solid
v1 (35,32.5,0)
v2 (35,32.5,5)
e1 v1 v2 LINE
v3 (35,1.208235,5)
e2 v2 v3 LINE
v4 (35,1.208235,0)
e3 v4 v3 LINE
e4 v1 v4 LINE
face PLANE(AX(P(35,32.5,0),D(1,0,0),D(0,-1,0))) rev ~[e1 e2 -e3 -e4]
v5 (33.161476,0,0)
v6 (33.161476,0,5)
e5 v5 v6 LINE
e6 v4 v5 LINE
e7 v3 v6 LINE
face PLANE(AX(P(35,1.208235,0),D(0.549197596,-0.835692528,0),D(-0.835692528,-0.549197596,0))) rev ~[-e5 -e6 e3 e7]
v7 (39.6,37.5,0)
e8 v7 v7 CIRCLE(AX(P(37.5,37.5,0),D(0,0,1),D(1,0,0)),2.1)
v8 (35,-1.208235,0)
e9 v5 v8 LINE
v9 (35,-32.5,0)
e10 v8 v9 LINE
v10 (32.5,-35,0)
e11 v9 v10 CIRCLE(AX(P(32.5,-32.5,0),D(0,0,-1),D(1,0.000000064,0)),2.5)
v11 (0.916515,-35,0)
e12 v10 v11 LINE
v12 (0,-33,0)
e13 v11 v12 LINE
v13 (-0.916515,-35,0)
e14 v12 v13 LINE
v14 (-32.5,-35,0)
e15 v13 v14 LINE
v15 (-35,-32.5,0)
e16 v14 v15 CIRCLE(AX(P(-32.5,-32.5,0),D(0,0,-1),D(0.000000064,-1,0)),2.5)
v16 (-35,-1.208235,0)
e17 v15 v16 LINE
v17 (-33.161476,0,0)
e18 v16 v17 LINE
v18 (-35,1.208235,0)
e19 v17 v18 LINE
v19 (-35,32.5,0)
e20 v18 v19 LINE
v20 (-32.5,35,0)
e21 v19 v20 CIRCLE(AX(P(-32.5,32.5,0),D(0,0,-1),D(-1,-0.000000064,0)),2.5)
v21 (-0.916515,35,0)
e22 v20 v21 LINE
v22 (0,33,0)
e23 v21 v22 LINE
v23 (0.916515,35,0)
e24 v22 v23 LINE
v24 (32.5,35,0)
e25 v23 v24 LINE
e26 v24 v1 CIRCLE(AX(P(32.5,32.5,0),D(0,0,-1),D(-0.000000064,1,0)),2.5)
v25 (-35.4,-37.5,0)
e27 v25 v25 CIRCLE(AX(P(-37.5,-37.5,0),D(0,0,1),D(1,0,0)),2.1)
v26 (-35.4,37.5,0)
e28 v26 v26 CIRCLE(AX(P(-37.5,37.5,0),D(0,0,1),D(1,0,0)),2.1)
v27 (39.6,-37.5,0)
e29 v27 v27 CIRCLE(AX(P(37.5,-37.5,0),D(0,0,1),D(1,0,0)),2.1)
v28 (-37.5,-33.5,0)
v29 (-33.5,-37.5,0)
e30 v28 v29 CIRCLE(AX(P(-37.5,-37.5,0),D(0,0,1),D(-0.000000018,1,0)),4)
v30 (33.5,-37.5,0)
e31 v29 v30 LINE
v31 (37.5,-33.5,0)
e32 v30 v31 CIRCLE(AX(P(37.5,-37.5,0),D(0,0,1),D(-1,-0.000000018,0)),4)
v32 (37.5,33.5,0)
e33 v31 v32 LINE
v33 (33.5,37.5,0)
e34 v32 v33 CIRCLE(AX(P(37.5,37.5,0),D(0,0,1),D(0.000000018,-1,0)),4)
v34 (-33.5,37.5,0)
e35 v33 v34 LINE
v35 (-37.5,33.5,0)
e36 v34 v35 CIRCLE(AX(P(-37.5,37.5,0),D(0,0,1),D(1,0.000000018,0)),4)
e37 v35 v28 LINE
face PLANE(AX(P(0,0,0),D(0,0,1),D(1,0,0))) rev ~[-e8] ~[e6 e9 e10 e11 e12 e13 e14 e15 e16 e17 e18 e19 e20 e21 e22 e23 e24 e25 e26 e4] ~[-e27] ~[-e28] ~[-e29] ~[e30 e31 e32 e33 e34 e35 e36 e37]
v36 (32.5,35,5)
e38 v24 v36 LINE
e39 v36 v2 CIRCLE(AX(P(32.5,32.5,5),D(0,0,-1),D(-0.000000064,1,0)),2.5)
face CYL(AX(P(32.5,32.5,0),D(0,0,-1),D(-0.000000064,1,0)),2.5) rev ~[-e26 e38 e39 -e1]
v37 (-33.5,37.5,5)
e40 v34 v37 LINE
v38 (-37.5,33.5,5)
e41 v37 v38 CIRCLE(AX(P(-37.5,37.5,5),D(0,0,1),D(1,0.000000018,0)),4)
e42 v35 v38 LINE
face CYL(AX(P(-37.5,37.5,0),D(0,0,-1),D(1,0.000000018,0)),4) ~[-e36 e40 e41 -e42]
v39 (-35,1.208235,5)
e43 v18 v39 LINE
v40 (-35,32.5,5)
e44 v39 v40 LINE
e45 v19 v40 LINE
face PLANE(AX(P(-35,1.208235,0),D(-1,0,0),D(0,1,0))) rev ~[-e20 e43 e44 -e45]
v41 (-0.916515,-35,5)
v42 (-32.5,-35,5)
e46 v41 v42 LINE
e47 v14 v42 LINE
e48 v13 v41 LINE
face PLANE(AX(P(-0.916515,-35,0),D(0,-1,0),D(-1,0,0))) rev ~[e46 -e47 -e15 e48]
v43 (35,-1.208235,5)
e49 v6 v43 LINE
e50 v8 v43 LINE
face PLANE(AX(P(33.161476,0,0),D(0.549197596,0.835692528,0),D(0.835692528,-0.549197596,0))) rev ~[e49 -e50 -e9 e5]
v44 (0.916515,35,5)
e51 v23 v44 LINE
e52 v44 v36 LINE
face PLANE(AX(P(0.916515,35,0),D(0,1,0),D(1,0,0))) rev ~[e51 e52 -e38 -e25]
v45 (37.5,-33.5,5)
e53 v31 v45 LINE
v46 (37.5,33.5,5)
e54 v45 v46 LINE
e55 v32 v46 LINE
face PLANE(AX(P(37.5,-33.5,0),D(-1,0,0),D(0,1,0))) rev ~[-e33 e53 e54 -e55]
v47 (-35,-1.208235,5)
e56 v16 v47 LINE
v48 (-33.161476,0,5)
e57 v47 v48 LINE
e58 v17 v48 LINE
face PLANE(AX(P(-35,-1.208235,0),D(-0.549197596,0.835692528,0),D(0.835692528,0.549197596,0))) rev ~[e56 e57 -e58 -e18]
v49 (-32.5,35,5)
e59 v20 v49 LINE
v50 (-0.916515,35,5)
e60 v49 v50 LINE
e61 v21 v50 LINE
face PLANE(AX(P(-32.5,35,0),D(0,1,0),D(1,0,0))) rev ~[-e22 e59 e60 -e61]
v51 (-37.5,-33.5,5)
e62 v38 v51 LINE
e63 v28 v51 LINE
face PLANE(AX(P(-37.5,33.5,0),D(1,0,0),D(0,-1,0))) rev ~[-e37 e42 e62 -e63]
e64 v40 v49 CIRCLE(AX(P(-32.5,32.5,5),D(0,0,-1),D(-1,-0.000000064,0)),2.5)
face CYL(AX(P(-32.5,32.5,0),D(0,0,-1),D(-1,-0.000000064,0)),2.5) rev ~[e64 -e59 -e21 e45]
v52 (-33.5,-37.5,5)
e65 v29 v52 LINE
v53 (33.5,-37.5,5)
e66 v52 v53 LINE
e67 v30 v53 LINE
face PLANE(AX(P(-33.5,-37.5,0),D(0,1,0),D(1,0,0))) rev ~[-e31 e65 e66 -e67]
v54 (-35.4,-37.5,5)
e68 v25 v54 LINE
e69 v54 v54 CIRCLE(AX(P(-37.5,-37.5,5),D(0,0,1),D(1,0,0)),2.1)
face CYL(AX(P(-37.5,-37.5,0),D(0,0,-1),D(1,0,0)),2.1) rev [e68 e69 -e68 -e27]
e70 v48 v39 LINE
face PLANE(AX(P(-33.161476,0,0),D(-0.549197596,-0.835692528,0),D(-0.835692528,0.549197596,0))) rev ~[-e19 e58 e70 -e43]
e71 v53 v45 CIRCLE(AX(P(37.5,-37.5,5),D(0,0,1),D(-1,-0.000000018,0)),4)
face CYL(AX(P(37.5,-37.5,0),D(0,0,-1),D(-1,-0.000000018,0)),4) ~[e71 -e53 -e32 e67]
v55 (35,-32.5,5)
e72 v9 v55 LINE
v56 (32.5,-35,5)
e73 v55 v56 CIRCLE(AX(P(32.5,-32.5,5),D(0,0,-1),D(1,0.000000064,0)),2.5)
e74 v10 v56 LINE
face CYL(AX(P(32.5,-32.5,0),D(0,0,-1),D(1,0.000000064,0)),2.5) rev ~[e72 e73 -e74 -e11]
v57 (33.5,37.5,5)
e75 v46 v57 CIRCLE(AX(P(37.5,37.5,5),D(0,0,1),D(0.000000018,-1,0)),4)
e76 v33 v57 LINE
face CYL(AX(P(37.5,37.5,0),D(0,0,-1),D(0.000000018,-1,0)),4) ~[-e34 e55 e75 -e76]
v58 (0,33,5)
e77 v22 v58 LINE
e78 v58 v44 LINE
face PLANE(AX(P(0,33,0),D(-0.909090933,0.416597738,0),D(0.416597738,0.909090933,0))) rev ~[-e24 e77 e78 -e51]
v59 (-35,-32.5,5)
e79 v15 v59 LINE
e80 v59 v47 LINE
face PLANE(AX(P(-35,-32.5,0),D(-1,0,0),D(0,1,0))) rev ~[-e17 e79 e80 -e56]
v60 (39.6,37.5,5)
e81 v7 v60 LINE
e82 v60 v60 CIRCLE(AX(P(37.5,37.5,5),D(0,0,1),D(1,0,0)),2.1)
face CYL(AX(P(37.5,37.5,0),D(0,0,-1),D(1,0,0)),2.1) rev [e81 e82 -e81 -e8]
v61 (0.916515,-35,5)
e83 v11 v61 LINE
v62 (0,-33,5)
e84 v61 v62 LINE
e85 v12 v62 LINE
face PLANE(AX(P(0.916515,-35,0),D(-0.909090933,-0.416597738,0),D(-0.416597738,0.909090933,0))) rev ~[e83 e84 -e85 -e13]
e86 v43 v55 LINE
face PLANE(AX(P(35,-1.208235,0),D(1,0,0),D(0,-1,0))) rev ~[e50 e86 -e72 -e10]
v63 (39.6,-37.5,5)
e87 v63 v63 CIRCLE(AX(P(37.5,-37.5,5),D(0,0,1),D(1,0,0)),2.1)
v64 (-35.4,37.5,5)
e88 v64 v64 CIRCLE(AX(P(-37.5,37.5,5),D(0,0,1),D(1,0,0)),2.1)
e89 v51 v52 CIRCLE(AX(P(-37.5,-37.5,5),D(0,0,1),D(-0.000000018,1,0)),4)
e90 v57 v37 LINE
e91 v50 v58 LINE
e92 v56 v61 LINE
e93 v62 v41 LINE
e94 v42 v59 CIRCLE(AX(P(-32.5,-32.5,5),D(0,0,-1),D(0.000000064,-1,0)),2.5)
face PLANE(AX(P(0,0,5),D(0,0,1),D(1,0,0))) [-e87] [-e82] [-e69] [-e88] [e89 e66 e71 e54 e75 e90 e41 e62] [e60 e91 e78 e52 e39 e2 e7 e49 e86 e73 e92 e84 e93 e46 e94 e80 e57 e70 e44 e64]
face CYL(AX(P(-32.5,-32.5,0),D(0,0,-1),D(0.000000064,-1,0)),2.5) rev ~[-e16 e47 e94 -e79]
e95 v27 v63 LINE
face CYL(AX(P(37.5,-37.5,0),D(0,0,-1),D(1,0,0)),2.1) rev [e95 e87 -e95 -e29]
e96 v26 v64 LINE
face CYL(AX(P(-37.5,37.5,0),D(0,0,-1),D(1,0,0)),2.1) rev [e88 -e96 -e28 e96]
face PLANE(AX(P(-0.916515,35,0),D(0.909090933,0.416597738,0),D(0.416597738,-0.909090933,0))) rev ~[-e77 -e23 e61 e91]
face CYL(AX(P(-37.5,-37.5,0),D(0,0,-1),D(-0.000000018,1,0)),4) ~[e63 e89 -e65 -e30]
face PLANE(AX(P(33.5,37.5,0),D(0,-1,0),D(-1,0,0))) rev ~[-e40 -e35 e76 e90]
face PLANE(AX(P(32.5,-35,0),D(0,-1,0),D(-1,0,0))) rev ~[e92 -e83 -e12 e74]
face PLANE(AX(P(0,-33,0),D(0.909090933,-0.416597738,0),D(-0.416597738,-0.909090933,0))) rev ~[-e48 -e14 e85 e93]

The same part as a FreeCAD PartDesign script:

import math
import FreeCAD as App
import Part
import Sketcher

V = App.Vector
Q = App.Units.Quantity

doc = App.newDocument("Part")
body = doc.addObject("PartDesign::Body", "Body")

sketch1 = body.newObject("Sketcher::SketchObject", "Sketch")
sketch1.AttachmentSupport = (doc.getObject("XY_Plane"), [""])
sketch1.MapMode = "FlatFace"
sketch1.addGeometry(Part.ArcOfCircle(Part.Circle(V(37.5, 37.5, 0), V(0, 0, 1), 4), math.radians(-90), math.radians(180)), False)
sketch1.addGeometry(Part.LineSegment(V(33.5, 37.5, 0), V(-33.5, 37.5, 0)), False)
sketch1.addGeometry(Part.ArcOfCircle(Part.Circle(V(-37.5, 37.5, 0), V(0, 0, 1), 4), math.radians(0), math.radians(270)), False)
sketch1.addGeometry(Part.LineSegment(V(-37.5, 33.5, 0), V(-37.5, -33.5, 0)), False)
sketch1.addGeometry(Part.ArcOfCircle(Part.Circle(V(-37.5, -37.5, 0), V(0, 0, 1), 4), math.radians(90), math.radians(360)), False)
sketch1.addGeometry(Part.LineSegment(V(-33.5, -37.5, 0), V(33.5, -37.5, 0)), False)
sketch1.addGeometry(Part.ArcOfCircle(Part.Circle(V(37.5, -37.5, 0), V(0, 0, 1), 4), math.radians(-180), math.radians(90)), False)
sketch1.addGeometry(Part.LineSegment(V(37.5, -33.5, 0), V(37.5, 33.5, 0)), False)
sketch1.addGeometry(Part.Circle(V(-37.5, -37.5, 0), V(0, 0, 1), 2.1), False)
sketch1.addGeometry(Part.Circle(V(37.5, -37.5, 0), V(0, 0, 1), 2.1), False)
sketch1.addGeometry(Part.Circle(V(-37.5, 37.5, 0), V(0, 0, 1), 2.1), False)
sketch1.addGeometry(Part.LineSegment(V(0, 33, 0), V(0.9, 35, 0)), False)
sketch1.addGeometry(Part.LineSegment(V(0.9, 35, 0), V(32.5, 35, 0)), False)
sketch1.addGeometry(Part.ArcOfCircle(Part.Circle(V(32.5, 32.5, 0), V(0, 0, 1), 2.5), math.radians(0), math.radians(90)), False)
sketch1.addGeometry(Part.LineSegment(V(35, 32.5, 0), V(35, 1.2, 0)), False)
sketch1.addGeometry(Part.LineSegment(V(35, 1.2, 0), V(33.2, 0, 0)), False)
sketch1.addGeometry(Part.LineSegment(V(33.2, 0, 0), V(35, -1.2, 0)), False)
sketch1.addGeometry(Part.LineSegment(V(35, -1.2, 0), V(35, -32.5, 0)), False)
sketch1.addGeometry(Part.ArcOfCircle(Part.Circle(V(32.5, -32.5, 0), V(0, 0, 1), 2.5), math.radians(-90), math.radians(0)), False)
sketch1.addGeometry(Part.LineSegment(V(32.5, -35, 0), V(0.9, -35, 0)), False)
sketch1.addGeometry(Part.LineSegment(V(0.9, -35, 0), V(0, -33, 0)), False)
sketch1.addGeometry(Part.LineSegment(V(0, -33, 0), V(-0.9, -35, 0)), False)
sketch1.addGeometry(Part.LineSegment(V(-0.9, -35, 0), V(-32.5, -35, 0)), False)
sketch1.addGeometry(Part.ArcOfCircle(Part.Circle(V(-32.5, -32.5, 0), V(0, 0, 1), 2.5), math.radians(180), math.radians(270)), False)
sketch1.addGeometry(Part.LineSegment(V(-35, -32.5, 0), V(-35, -1.2, 0)), False)
sketch1.addGeometry(Part.LineSegment(V(-35, -1.2, 0), V(-33.2, 0, 0)), False)
sketch1.addGeometry(Part.LineSegment(V(-33.2, 0, 0), V(-35, 1.2, 0)), False)
sketch1.addGeometry(Part.LineSegment(V(-35, 1.2, 0), V(-35, 32.5, 0)), False)
sketch1.addGeometry(Part.ArcOfCircle(Part.Circle(V(-32.5, 32.5, 0), V(0, 0, 1), 2.5), math.radians(90), math.radians(180)), False)
sketch1.addGeometry(Part.LineSegment(V(-32.5, 35, 0), V(-0.9, 35, 0)), False)
sketch1.addGeometry(Part.LineSegment(V(-0.9, 35, 0), V(0, 33, 0)), False)
sketch1.addGeometry(Part.Circle(V(37.5, 37.5, 0), V(0, 0, 1), 2.1), False)
sketch1.addConstraint(Sketcher.Constraint("Coincident", 0, 2, 1, 1))
sketch1.addConstraint(Sketcher.Constraint("Coincident", 1, 2, 2, 1))
sketch1.addConstraint(Sketcher.Constraint("Coincident", 2, 2, 3, 1))
sketch1.addConstraint(Sketcher.Constraint("Coincident", 3, 2, 4, 1))
sketch1.addConstraint(Sketcher.Constraint("Coincident", 4, 2, 5, 1))
sketch1.addConstraint(Sketcher.Constraint("Coincident", 5, 2, 6, 1))
sketch1.addConstraint(Sketcher.Constraint("Coincident", 6, 2, 7, 1))
sketch1.addConstraint(Sketcher.Constraint("Coincident", 7, 2, 0, 1))
sketch1.addConstraint(Sketcher.Constraint("Coincident", 11, 2, 12, 1))
sketch1.addConstraint(Sketcher.Constraint("Tangent", 12, 2, 13, 2))
sketch1.addConstraint(Sketcher.Constraint("Tangent", 13, 1, 14, 1))
sketch1.addConstraint(Sketcher.Constraint("Coincident", 14, 2, 15, 1))
sketch1.addConstraint(Sketcher.Constraint("Coincident", 15, 2, 16, 1))
sketch1.addConstraint(Sketcher.Constraint("Coincident", 16, 2, 17, 1))
sketch1.addConstraint(Sketcher.Constraint("Tangent", 17, 2, 18, 2))
sketch1.addConstraint(Sketcher.Constraint("Tangent", 18, 1, 19, 1))
sketch1.addConstraint(Sketcher.Constraint("Coincident", 19, 2, 20, 1))
sketch1.addConstraint(Sketcher.Constraint("Coincident", 20, 2, 21, 1))
sketch1.addConstraint(Sketcher.Constraint("Coincident", 21, 2, 22, 1))
sketch1.addConstraint(Sketcher.Constraint("Tangent", 22, 2, 23, 2))
sketch1.addConstraint(Sketcher.Constraint("Tangent", 23, 1, 24, 1))
sketch1.addConstraint(Sketcher.Constraint("Coincident", 24, 2, 25, 1))
sketch1.addConstraint(Sketcher.Constraint("Coincident", 25, 2, 26, 1))
sketch1.addConstraint(Sketcher.Constraint("Coincident", 26, 2, 27, 1))
sketch1.addConstraint(Sketcher.Constraint("Tangent", 27, 2, 28, 2))
sketch1.addConstraint(Sketcher.Constraint("Tangent", 28, 1, 29, 1))
sketch1.addConstraint(Sketcher.Constraint("Coincident", 29, 2, 30, 1))
sketch1.addConstraint(Sketcher.Constraint("Coincident", 30, 2, 11, 1))
sketch1.addConstraint(Sketcher.Constraint("Horizontal", 1))
sketch1.addConstraint(Sketcher.Constraint("Vertical", 3))
sketch1.addConstraint(Sketcher.Constraint("Horizontal", 5))
sketch1.addConstraint(Sketcher.Constraint("Vertical", 7))
sketch1.addConstraint(Sketcher.Constraint("Horizontal", 12))
sketch1.addConstraint(Sketcher.Constraint("Vertical", 14))
sketch1.addConstraint(Sketcher.Constraint("Vertical", 17))
sketch1.addConstraint(Sketcher.Constraint("Horizontal", 19))
sketch1.addConstraint(Sketcher.Constraint("Horizontal", 22))
sketch1.addConstraint(Sketcher.Constraint("Vertical", 24))
sketch1.addConstraint(Sketcher.Constraint("Vertical", 27))
sketch1.addConstraint(Sketcher.Constraint("Horizontal", 29))
sketch1.addConstraint(Sketcher.Constraint("Coincident", 8, 3, 4, 3))
sketch1.addConstraint(Sketcher.Constraint("Coincident", 9, 3, 6, 3))
sketch1.addConstraint(Sketcher.Constraint("Coincident", 10, 3, 2, 3))
sketch1.addConstraint(Sketcher.Constraint("Coincident", 31, 3, 0, 3))
sketch1.addConstraint(Sketcher.Constraint("Equal", 0, 2))
sketch1.addConstraint(Sketcher.Constraint("Equal", 2, 4))
sketch1.addConstraint(Sketcher.Constraint("Equal", 4, 6))
sketch1.addConstraint(Sketcher.Constraint("Equal", 8, 9))
sketch1.addConstraint(Sketcher.Constraint("Equal", 9, 10))
sketch1.addConstraint(Sketcher.Constraint("Equal", 13, 18))
sketch1.addConstraint(Sketcher.Constraint("Equal", 18, 23))
sketch1.addConstraint(Sketcher.Constraint("Equal", 23, 28))
sketch1.addConstraint(Sketcher.Constraint("Equal", 10, 31))
sketch1.addConstraint(Sketcher.Constraint("Symmetric", 0, 3, 4, 3, -1, 1))
sketch1.addConstraint(Sketcher.Constraint("Symmetric", 2, 3, 6, 3, -1, 1))
sketch1.addConstraint(Sketcher.Constraint("Symmetric", 13, 3, 23, 3, -1, 1))
sketch1.addConstraint(Sketcher.Constraint("Symmetric", 18, 3, 28, 3, -1, 1))
sketch1.addConstraint(Sketcher.Constraint("Symmetric", 15, 2, 25, 2, -1, 1))
sketch1.addConstraint(Sketcher.Constraint("Symmetric", 20, 2, 30, 2, -1, 1))
sketch1.addConstraint(Sketcher.Constraint("Symmetric", 0, 3, 2, 3, -2))
sketch1.addConstraint(Sketcher.Constraint("Symmetric", 18, 3, 23, 3, -2))
sketch1.addConstraint(Sketcher.Constraint("PointOnObject", 15, 2, -1))
sketch1.addConstraint(Sketcher.Constraint("PointOnObject", 20, 2, -2))
sketch1.addConstraint(Sketcher.Constraint("Parallel", 11, 21))
sketch1.addConstraint(Sketcher.Constraint("Parallel", 15, 25))
sketch1.addConstraint(Sketcher.Constraint("Parallel", 16, 26))
sketch1.addConstraint(Sketcher.Constraint("Parallel", 20, 30))
sketch1.addConstraint(Sketcher.Constraint("Horizontal", 31, 3, 0, 2))
sketch1.addConstraint(Sketcher.Constraint("Horizontal", 9, 3, 4, 2))
sketch1.addConstraint(Sketcher.Constraint("Horizontal", 16, 2, 24, 2))
sketch1.addConstraint(Sketcher.Constraint("Vertical", 10, 3, 2, 2))
sketch1.addConstraint(Sketcher.Constraint("Vertical", 31, 3, 6, 2))
sketch1.addConstraint(Sketcher.Constraint("Vertical", 11, 2, 19, 2))
sketch1.addConstraint(Sketcher.Constraint("Equal", 5, 3))
sketch1.addConstraint(Sketcher.Constraint("Equal", 11, 15))
sketch1.addConstraint(Sketcher.Constraint("Radius", 0, Q("4 mm")))
sketch1.addConstraint(Sketcher.Constraint("Diameter", 8, Q("4.2 mm")))
sketch1.addConstraint(Sketcher.Constraint("Radius", 13, Q("2.5 mm")))
sketch1.addConstraint(Sketcher.Constraint("DistanceX", 1, 2, 1, 1, Q("67 mm")))
sketch1.addConstraint(Sketcher.Constraint("DistanceY", -1, 1, 11, 2, Q("35 mm")))
sketch1.addConstraint(Sketcher.Constraint("DistanceX", -1, 1, 13, 1, Q("35 mm")))
sketch1.addConstraint(Sketcher.Constraint("DistanceY", 20, 2, -1, 1, Q("33 mm")))
sketch1.addConstraint(Sketcher.Constraint("Distance", 11, Q("2.2 mm")))
sketch1.addConstraint(Sketcher.Constraint("DistanceY", 14, 2, 14, 1, Q("31.291765 mm")))
pad1 = body.newObject("PartDesign::Pad", "Pad")
pad1.Profile = sketch1
pad1.Length = 5

doc.recompute()
